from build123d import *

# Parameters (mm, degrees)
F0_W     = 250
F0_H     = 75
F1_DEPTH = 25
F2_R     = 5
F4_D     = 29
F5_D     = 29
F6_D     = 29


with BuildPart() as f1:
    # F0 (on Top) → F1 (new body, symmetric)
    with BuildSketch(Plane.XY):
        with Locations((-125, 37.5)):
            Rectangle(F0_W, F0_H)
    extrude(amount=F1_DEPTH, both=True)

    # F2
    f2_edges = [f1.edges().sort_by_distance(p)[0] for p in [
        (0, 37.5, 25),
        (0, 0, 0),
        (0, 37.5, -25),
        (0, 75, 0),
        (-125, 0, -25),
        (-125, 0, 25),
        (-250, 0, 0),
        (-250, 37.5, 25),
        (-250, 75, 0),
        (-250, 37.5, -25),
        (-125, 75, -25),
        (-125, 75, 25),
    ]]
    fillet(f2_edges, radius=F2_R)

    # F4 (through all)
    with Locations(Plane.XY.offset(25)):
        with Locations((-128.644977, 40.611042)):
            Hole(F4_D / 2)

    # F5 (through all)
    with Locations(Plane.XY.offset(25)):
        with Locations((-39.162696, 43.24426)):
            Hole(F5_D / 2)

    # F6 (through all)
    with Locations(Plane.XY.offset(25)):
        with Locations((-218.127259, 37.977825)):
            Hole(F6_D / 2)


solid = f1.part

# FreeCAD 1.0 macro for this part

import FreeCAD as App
import Part
import Sketcher
from FreeCAD import Vector

doc = App.newDocument("Part")
body = doc.addObject("PartDesign::Body", "Body")

# Sketch on XY plane
sketch1 = doc.addObject("Sketcher::SketchObject", "Sketch")
body.addObject(sketch1)
sketch1.AttachmentSupport = (doc.XY_Plane, [""])
sketch1.MapMode = "FlatFace"
sketch1.addGeometry(Part.LineSegment(Vector(-250, 75, 0), Vector(-250, 0, 0)), False)
sketch1.addGeometry(Part.LineSegment(Vector(-250, 0, 0), Vector(0, 0, 0)), False)
sketch1.addGeometry(Part.LineSegment(Vector(0, 0, 0), Vector(0, 75, 0)), False)
sketch1.addGeometry(Part.LineSegment(Vector(0, 75, 0), Vector(-250, 75, 0)), False)
sketch1.addConstraint(Sketcher.Constraint("Coincident", 0, 2, 1, 1))
sketch1.addConstraint(Sketcher.Constraint("Coincident", 1, 2, 2, 1))
sketch1.addConstraint(Sketcher.Constraint("Coincident", 2, 2, 3, 1))
sketch1.addConstraint(Sketcher.Constraint("Coincident", 3, 2, 0, 1))
sketch1.addConstraint(Sketcher.Constraint("Vertical", 0))
sketch1.addConstraint(Sketcher.Constraint("Horizontal", 1))
sketch1.addConstraint(Sketcher.Constraint("Vertical", 2))
sketch1.addConstraint(Sketcher.Constraint("Horizontal", 3))
sketch1.addConstraint(Sketcher.Constraint("Coincident", 1, 2, -1, 1))
sketch1.addConstraint(Sketcher.Constraint("DistanceX", 1, 1, 1, 2, 250.0))
sketch1.addConstraint(Sketcher.Constraint("DistanceY", 0, 2, 0, 1, 75.0))
pad1 = doc.addObject("PartDesign::Pad", "Pad")
body.addObject(pad1)
pad1.Profile = sketch1
pad1.Length = 50
pad1.Midplane = True
doc.recompute()

fillet = doc.addObject("PartDesign::Fillet", "Fillet")
body.addObject(fillet)
fillet.Base = (pad1, ["Edge1"])
fillet.UseAllEdges = True
fillet.Radius = 5

# Sketch on XY plane
sketch2 = doc.addObject("Sketcher::SketchObject", "Sketch001")
body.addObject(sketch2)
sketch2.AttachmentSupport = (doc.XY_Plane, [""])
sketch2.MapMode = "FlatFace"
sketch2.AttachmentOffset = App.Placement(Vector(0, 0, 25), App.Rotation())
sketch2.addGeometry(Part.Circle(Vector(-129, 41, 0), Vector(0, 0, 1), 14), False)
sketch2.addConstraint(Sketcher.Constraint("Diameter", 0, 29.0))
sketch2.addConstraint(Sketcher.Constraint("DistanceY", -1, 1, 0, 3, 40.611042))
sketch2.addConstraint(Sketcher.Constraint("DistanceX", 0, 3, -1, 1, 128.644977))
doc.recompute()
hole = doc.addObject("PartDesign::Hole", "Hole")
body.addObject(hole)
hole.Profile = sketch2
hole.ThreadType = "None"
hole.Diameter = 29
hole.DepthType = "ThroughAll"

# Sketch on XY plane
sketch3 = doc.addObject("Sketcher::SketchObject", "Sketch002")
body.addObject(sketch3)
sketch3.AttachmentSupport = (doc.XY_Plane, [""])
sketch3.MapMode = "FlatFace"
sketch3.AttachmentOffset = App.Placement(Vector(0, 0, 25), App.Rotation())
sketch3.addGeometry(Part.Circle(Vector(-39, 43, 0), Vector(0, 0, 1), 14), False)
sketch3.addConstraint(Sketcher.Constraint("Diameter", 0, 29.0))
sketch3.addConstraint(Sketcher.Constraint("DistanceY", -1, 1, 0, 3, 43.24426))
sketch3.addConstraint(Sketcher.Constraint("DistanceX", 0, 3, -1, 1, 39.162696))
doc.recompute()
hole2 = doc.addObject("PartDesign::Hole", "Hole001")
body.addObject(hole2)
hole2.Profile = sketch3
hole2.ThreadType = "None"
hole2.Diameter = 29
hole2.DepthType = "ThroughAll"

# Sketch on XY plane
sketch4 = doc.addObject("Sketcher::SketchObject", "Sketch003")
body.addObject(sketch4)
sketch4.AttachmentSupport = (doc.XY_Plane, [""])
sketch4.MapMode = "FlatFace"
sketch4.AttachmentOffset = App.Placement(Vector(0, 0, 25), App.Rotation())
sketch4.addGeometry(Part.Circle(Vector(-218, 38, 0), Vector(0, 0, 1), 14), False)
sketch4.addConstraint(Sketcher.Constraint("Diameter", 0, 29.0))
sketch4.addConstraint(Sketcher.Constraint("DistanceX", 0, 3, -1, 1, 218.127259))
sketch4.addConstraint(Sketcher.Constraint("DistanceY", -1, 1, 0, 3, 37.977825))
doc.recompute()
hole3 = doc.addObject("PartDesign::Hole", "Hole002")
body.addObject(hole3)
hole3.Profile = sketch4
hole3.ThreadType = "None"
hole3.Diameter = 29
hole3.DepthType = "ThroughAll"

doc.recompute()
